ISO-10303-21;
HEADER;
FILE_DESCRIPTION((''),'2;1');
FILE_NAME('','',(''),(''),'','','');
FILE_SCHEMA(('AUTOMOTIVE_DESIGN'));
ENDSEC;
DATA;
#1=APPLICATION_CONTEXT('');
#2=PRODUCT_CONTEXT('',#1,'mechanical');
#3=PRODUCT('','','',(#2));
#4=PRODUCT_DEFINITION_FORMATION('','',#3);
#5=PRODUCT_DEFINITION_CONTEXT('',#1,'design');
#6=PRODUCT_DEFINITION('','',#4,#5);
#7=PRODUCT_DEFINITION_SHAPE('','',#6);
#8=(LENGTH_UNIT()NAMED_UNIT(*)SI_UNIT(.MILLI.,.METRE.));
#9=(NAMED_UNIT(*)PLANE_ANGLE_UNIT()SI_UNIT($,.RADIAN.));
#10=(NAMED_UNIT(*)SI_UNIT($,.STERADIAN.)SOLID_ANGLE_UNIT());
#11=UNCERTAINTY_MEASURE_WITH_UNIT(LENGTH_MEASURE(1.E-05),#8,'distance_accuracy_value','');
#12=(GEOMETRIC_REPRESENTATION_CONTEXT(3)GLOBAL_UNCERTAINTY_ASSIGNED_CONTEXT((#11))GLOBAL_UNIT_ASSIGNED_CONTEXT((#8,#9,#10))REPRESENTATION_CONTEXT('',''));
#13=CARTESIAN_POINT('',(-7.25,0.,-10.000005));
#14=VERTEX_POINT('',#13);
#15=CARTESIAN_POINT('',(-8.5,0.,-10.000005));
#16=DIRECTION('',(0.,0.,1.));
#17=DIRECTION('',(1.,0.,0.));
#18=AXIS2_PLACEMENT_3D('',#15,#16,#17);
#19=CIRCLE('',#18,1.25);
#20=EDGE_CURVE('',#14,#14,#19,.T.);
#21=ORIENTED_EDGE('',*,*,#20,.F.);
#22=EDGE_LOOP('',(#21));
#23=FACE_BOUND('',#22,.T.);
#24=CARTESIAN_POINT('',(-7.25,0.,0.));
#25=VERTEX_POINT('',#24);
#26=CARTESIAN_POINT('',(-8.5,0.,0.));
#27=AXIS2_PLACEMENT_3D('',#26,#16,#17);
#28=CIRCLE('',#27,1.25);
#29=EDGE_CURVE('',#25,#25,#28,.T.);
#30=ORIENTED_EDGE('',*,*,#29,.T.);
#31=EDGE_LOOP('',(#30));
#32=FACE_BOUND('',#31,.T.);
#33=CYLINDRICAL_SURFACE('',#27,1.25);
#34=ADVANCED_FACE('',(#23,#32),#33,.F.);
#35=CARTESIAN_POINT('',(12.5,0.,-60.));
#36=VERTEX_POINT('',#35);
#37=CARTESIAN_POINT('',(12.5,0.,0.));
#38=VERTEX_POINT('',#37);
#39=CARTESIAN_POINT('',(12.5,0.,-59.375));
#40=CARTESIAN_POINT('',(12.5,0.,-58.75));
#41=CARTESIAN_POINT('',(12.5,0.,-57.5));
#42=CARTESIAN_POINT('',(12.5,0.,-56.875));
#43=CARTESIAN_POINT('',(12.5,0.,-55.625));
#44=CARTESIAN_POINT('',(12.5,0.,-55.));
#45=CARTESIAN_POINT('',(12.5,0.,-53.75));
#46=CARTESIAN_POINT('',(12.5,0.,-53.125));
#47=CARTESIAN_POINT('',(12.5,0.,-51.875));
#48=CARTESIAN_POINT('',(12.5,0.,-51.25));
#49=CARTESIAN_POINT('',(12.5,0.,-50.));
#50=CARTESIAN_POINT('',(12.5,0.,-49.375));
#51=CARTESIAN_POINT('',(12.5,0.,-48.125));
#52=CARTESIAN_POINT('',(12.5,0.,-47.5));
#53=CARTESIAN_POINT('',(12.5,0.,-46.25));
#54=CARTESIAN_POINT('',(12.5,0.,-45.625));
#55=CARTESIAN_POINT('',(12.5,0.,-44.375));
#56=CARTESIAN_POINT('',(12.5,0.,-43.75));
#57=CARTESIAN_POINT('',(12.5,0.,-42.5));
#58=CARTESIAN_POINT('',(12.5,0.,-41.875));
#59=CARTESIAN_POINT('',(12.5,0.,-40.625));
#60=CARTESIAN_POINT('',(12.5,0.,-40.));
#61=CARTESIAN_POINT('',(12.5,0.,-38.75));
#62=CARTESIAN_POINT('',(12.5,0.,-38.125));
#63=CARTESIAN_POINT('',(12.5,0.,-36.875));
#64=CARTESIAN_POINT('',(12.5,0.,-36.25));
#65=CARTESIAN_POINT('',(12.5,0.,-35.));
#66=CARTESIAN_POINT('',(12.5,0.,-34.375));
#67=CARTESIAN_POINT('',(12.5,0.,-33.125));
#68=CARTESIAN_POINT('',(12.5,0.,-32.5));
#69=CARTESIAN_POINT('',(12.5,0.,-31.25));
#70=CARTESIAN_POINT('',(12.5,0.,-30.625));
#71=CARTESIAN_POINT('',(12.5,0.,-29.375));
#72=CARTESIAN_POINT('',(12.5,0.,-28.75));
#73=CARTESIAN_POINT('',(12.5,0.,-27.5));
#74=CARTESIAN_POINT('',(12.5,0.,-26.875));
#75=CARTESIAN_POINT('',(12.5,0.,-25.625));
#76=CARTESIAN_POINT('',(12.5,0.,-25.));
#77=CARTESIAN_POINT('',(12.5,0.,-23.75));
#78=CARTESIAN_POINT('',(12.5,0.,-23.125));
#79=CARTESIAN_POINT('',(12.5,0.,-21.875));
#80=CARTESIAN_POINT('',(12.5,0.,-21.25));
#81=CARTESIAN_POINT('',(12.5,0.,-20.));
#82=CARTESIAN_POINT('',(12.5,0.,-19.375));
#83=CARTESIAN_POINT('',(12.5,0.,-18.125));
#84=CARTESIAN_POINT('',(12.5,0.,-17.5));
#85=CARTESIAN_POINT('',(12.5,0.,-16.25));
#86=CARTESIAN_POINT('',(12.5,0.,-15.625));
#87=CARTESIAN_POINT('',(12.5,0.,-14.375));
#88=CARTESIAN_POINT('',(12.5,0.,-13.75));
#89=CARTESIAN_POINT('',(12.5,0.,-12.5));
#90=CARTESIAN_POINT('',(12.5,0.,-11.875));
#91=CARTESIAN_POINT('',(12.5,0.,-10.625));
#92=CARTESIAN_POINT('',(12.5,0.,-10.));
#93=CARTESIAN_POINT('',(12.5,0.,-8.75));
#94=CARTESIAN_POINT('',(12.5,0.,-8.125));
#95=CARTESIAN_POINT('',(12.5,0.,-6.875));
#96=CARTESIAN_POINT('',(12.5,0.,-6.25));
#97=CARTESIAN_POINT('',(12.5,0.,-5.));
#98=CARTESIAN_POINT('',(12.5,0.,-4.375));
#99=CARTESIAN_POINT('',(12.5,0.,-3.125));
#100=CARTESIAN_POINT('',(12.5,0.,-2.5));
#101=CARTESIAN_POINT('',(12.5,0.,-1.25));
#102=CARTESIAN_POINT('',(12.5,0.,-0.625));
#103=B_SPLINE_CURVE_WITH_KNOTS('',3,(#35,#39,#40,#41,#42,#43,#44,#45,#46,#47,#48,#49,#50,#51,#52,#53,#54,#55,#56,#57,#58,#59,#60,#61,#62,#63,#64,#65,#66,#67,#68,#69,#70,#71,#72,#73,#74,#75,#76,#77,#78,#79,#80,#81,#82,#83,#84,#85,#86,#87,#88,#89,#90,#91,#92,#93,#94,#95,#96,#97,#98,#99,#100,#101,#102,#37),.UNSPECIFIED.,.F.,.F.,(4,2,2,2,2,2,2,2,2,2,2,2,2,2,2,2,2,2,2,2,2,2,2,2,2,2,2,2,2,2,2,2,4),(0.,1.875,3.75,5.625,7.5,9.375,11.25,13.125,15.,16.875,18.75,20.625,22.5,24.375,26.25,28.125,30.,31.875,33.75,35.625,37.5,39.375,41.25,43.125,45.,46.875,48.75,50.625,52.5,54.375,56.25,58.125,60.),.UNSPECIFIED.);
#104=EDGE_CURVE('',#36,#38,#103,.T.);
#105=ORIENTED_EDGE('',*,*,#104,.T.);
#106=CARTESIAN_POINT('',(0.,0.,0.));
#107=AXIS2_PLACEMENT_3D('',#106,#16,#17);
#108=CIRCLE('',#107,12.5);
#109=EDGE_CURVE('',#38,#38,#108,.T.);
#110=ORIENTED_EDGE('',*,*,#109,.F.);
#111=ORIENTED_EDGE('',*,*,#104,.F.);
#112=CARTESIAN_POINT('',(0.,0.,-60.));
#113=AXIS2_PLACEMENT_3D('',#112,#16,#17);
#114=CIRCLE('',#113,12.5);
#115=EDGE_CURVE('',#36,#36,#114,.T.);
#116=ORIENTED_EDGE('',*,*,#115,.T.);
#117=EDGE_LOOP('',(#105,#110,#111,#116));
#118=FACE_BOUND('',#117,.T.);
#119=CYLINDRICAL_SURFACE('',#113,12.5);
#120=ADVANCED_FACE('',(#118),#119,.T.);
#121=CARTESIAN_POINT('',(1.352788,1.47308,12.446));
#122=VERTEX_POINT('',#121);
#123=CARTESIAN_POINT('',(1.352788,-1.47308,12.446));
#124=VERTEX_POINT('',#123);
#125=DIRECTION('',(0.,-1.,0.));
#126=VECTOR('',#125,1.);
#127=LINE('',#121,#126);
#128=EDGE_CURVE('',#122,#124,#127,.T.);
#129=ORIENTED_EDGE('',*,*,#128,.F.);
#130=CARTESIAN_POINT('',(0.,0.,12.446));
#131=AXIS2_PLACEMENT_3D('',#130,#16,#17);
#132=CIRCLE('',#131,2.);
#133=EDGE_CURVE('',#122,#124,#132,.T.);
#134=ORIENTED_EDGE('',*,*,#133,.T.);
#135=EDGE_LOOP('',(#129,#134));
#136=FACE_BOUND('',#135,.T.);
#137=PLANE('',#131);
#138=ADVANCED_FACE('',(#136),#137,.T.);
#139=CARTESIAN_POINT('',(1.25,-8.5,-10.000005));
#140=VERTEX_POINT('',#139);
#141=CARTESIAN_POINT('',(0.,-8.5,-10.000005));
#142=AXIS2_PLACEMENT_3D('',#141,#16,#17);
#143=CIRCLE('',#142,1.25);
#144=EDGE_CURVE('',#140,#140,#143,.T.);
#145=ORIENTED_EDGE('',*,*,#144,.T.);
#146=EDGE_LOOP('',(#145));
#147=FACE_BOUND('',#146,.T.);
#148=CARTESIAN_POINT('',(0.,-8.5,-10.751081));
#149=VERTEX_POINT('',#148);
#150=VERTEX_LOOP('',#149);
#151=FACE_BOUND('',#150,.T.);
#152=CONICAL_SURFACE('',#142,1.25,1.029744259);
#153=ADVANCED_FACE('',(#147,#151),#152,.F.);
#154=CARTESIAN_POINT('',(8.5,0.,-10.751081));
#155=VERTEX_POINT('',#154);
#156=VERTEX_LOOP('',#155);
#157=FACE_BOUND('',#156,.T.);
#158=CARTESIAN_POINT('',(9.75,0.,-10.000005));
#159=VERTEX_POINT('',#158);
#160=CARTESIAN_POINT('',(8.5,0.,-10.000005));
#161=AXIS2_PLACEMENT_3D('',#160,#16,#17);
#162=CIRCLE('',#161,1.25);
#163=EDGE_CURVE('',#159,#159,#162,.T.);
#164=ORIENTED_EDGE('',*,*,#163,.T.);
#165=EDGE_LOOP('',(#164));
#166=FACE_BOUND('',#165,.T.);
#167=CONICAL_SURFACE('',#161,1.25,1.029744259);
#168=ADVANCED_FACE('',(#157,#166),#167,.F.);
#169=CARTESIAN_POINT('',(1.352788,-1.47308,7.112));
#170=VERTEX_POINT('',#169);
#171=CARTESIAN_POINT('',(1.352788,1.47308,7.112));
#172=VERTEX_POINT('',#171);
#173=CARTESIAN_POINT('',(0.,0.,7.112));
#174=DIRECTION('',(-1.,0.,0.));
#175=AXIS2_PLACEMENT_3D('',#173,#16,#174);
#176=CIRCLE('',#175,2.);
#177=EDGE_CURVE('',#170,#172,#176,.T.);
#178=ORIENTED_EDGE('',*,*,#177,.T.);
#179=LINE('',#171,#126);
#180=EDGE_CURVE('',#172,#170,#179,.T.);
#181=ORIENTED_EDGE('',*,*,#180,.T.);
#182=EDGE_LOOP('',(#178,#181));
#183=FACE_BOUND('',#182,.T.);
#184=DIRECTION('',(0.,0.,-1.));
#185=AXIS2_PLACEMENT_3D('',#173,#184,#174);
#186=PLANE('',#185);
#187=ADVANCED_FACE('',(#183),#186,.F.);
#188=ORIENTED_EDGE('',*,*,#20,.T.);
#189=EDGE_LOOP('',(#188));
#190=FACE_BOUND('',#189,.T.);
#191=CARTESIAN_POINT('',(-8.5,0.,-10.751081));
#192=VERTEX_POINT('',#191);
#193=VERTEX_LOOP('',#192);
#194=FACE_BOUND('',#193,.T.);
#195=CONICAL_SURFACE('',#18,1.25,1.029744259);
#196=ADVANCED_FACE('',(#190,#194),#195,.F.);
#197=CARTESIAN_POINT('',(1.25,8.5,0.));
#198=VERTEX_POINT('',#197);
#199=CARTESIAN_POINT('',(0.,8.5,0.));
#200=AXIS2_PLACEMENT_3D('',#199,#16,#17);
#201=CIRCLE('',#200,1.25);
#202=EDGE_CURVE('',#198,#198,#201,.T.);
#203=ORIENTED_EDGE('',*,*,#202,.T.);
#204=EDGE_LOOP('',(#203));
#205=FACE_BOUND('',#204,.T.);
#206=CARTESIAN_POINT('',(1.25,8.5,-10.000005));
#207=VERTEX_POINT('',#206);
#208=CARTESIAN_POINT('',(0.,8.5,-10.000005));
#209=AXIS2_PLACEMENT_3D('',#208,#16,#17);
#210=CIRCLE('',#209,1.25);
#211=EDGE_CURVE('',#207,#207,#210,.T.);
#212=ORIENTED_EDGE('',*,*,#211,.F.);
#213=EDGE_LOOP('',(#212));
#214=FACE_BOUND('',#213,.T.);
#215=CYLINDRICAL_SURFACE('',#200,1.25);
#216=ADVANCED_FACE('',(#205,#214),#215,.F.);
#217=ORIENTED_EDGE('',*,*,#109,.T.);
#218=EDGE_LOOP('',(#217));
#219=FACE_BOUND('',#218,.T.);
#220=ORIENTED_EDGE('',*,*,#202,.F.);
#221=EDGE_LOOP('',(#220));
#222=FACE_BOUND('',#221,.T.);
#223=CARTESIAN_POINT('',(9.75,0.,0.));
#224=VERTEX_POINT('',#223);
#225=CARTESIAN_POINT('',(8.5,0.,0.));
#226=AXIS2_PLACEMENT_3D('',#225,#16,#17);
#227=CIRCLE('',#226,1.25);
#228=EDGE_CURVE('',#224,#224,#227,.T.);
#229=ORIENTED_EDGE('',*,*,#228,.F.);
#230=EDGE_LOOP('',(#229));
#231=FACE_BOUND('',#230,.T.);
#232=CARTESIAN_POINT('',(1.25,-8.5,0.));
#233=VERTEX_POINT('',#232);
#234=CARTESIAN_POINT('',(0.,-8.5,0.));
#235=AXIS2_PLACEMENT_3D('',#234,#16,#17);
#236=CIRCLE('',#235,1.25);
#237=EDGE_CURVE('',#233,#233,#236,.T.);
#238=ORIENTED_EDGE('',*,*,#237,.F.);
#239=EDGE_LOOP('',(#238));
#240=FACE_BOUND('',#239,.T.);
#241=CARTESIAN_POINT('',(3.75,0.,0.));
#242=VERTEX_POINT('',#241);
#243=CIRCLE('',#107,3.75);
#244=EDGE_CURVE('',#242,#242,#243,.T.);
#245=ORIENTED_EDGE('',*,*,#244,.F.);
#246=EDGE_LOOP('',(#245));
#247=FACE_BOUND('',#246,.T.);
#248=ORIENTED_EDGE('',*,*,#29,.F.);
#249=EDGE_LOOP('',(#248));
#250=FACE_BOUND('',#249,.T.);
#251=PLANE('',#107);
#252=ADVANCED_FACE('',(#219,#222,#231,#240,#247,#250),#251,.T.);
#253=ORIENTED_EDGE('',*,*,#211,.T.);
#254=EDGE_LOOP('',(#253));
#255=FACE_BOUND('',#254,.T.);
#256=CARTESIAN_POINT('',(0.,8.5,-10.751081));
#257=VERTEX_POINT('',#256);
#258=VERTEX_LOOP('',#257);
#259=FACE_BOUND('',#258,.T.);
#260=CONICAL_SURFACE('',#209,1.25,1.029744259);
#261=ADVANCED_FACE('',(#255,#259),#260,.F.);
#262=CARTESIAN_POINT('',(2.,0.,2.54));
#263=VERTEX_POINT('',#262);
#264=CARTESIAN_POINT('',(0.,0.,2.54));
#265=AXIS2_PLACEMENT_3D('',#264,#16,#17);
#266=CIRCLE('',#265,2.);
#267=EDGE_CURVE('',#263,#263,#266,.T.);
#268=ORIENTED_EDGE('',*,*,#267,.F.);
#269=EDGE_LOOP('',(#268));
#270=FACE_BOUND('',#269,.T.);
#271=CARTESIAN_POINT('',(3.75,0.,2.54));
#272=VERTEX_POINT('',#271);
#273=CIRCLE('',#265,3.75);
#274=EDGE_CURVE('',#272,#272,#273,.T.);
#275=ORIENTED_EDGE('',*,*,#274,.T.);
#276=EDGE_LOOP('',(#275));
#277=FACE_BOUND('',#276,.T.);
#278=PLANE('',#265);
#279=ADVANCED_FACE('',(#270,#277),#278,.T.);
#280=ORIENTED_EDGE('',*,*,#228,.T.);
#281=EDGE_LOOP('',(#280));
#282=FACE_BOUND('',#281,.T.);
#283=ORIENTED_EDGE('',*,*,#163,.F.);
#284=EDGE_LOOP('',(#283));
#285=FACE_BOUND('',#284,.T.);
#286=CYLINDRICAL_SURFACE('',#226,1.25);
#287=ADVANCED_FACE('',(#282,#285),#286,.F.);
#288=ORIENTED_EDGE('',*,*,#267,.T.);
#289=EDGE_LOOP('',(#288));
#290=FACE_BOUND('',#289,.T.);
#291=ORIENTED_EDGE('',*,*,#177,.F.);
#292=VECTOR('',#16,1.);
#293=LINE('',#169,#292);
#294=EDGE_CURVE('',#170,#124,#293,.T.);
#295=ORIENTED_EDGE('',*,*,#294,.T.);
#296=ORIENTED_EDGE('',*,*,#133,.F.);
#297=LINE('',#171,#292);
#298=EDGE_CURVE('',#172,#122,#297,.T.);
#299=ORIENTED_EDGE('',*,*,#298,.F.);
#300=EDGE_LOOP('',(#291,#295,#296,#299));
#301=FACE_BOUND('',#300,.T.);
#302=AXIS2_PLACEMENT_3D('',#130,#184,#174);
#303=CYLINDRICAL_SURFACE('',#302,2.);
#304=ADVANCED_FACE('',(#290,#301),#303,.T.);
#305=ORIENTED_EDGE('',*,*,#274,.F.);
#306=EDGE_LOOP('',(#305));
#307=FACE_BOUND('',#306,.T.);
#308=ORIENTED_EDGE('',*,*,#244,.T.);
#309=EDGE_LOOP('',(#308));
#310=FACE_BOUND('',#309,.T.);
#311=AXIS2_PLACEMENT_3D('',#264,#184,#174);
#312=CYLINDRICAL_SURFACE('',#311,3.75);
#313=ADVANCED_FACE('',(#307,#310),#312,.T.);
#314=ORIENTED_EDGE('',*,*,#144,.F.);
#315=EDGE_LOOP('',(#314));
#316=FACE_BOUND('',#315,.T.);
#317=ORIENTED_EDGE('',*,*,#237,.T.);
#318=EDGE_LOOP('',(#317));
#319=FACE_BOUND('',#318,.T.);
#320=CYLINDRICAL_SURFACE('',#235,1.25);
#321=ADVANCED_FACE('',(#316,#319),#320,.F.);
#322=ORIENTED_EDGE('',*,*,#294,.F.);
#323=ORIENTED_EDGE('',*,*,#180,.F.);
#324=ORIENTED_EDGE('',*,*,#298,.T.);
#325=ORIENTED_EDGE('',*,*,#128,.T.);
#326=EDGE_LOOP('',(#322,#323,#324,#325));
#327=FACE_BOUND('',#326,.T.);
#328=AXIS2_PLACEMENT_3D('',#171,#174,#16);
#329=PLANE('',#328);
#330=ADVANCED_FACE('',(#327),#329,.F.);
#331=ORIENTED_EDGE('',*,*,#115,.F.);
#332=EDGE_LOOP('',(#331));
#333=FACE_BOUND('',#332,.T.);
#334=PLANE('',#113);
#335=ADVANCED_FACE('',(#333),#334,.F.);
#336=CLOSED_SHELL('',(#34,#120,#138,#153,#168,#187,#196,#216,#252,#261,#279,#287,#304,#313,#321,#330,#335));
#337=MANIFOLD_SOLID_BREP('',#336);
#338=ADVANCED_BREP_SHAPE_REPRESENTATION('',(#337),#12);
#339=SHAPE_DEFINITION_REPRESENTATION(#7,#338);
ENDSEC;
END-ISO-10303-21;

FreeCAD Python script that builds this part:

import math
import FreeCAD as App
import Part
import Sketcher
from FreeCAD import Vector

doc = App.newDocument("Part")
params = doc.addObject("Spreadsheet::Sheet", "Params")
for row, (alias, value) in enumerate([
    ("sketch1_diameter", "25 mm"),
    ("pad1_length", "60 mm"),
    ("sketch2_diameter", "4 mm"),
    ("pad2_length", "12.446 mm"),
    ("sketch3_diameter", "7.5 mm"),
    ("pad3_length", "2.54 mm"),
    ("sketch4_radius", "2 mm"),
    ("pocket1_length", "5.334 mm"),
    ("sketch5_diameter", "2.5 mm"),
    ("hole_diameter", "2.5 mm"),
    ("hole_depth", "10.000005 mm"),
], start=1):
    params.set(f"A{row}", alias)
    params.set(f"B{row}", "=" + value)
    params.setAlias(f"B{row}", alias)

body = doc.addObject("PartDesign::Body", "Body")

# Sketch on XY plane
sketch1 = doc.addObject("Sketcher::SketchObject", "Sketch")
body.addObject(sketch1)
sketch1.AttachmentSupport = (doc.XY_Plane, [""])
sketch1.MapMode = "FlatFace"
sketch1.addGeometry(Part.Circle(Vector(0, 0, 0), Vector(0, 0, 1), 12), False)
sketch1.addConstraint(Sketcher.Constraint("Coincident", 0, 3, -1, 1))
sketch1.addConstraint(Sketcher.Constraint("Diameter", 0, 25.0))
sketch1.setExpression("Constraints[1]", "Params.sketch1_diameter")
pad1 = doc.addObject("PartDesign::Pad", "Pad")
body.addObject(pad1)
pad1.Profile = sketch1
pad1.setExpression("Length", "Params.pad1_length")
pad1.Reversed = True

# Sketch on XY plane
sketch2 = doc.addObject("Sketcher::SketchObject", "Sketch001")
body.addObject(sketch2)
sketch2.AttachmentSupport = (doc.XY_Plane, [""])
sketch2.MapMode = "FlatFace"
sketch2.addGeometry(Part.Circle(Vector(0, 0, 0), Vector(0, 0, 1), 2), False)
sketch2.addConstraint(Sketcher.Constraint("Coincident", 0, 3, -1, 1))
sketch2.addConstraint(Sketcher.Constraint("Diameter", 0, 4.0))
sketch2.setExpression("Constraints[1]", "Params.sketch2_diameter")
pad2 = doc.addObject("PartDesign::Pad", "Pad001")
body.addObject(pad2)
pad2.Profile = sketch2
pad2.setExpression("Length", "Params.pad2_length")

# Sketch on XY plane
sketch3 = doc.addObject("Sketcher::SketchObject", "Sketch002")
body.addObject(sketch3)
sketch3.AttachmentSupport = (doc.XY_Plane, [""])
sketch3.MapMode = "FlatFace"
sketch3.addGeometry(Part.Circle(Vector(0, 0, 0), Vector(0, 0, 1), 3.8), False)
sketch3.addConstraint(Sketcher.Constraint("Coincident", 0, 3, -1, 1))
sketch3.addConstraint(Sketcher.Constraint("Diameter", 0, 7.5))
sketch3.setExpression("Constraints[1]", "Params.sketch3_diameter")
pad3 = doc.addObject("PartDesign::Pad", "Pad002")
body.addObject(pad3)
pad3.Profile = sketch3
pad3.setExpression("Length", "Params.pad3_length")

# Sketch on XY plane
sketch4 = doc.addObject("Sketcher::SketchObject", "Sketch003")
body.addObject(sketch4)
sketch4.AttachmentSupport = (doc.XY_Plane, [""])
sketch4.MapMode = "FlatFace"
sketch4.AttachmentOffset = App.Placement(Vector(0, 0, 7.112), App.Rotation())
sketch4.addGeometry(Part.LineSegment(Vector(1.4, 1.5, 0), Vector(1.4, -1.5, 0)), False)
sketch4.addGeometry(Part.ArcOfCircle(Part.Circle(Vector(0, 0, 0), Vector(0, 0, 1), 2), math.radians(-47), math.radians(47)), False)
sketch4.addConstraint(Sketcher.Constraint("Coincident", 0, 1, 1, 2))
sketch4.addConstraint(Sketcher.Constraint("Coincident", 1, 1, 0, 2))
sketch4.addConstraint(Sketcher.Constraint("Vertical", 0))
sketch4.addConstraint(Sketcher.Constraint("Coincident", 1, 3, -1, 1))
sketch4.addConstraint(Sketcher.Constraint("Radius", 1, 2.0))
sketch4.addConstraint(Sketcher.Constraint("DistanceY", 0, 2, 0, 1, 2.946161))
sketch4.setExpression("Constraints[4]", "Params.sketch4_radius")
pocket1 = doc.addObject("PartDesign::Pocket", "Pocket")
body.addObject(pocket1)
pocket1.Profile = sketch4
pocket1.setExpression("Length", "Params.pocket1_length")
pocket1.Reversed = True

# Sketch on XY plane
sketch5 = doc.addObject("Sketcher::SketchObject", "Sketch004")
body.addObject(sketch5)
sketch5.AttachmentSupport = (doc.XY_Plane, [""])
sketch5.MapMode = "FlatFace"
sketch5.addGeometry(Part.Circle(Vector(0, 8.5, 0), Vector(0, 0, 1), 1.2), False)
sketch5.addGeometry(Part.Circle(Vector(8.5, 0, 0), Vector(0, 0, 1), 1.2), False)
sketch5.addGeometry(Part.Circle(Vector(0, -8.5, 0), Vector(0, 0, 1), 1.2), False)
sketch5.addGeometry(Part.Circle(Vector(-8.5, 0, 0), Vector(0, 0, 1), 1.2), False)
sketch5.addConstraint(Sketcher.Constraint("Equal", 0, 1))
sketch5.addConstraint(Sketcher.Constraint("Equal", 1, 2))
sketch5.addConstraint(Sketcher.Constraint("Equal", 2, 3))
sketch5.addConstraint(Sketcher.Constraint("Symmetric", 0, 3, 2, 3, -1, 1))
sketch5.addConstraint(Sketcher.Constraint("Symmetric", 1, 3, 3, 3, -1, 1))
sketch5.addConstraint(Sketcher.Constraint("PointOnObject", 0, 3, -2))
sketch5.addConstraint(Sketcher.Constraint("PointOnObject", 1, 3, -1))
sketch5.addConstraint(Sketcher.Constraint("Diameter", 0, 2.5))
sketch5.addConstraint(Sketcher.Constraint("DistanceY", 2, 3, 0, 3, 17.0))
sketch5.addConstraint(Sketcher.Constraint("DistanceX", 3, 3, 1, 3, 17.0))
sketch5.setExpression("Constraints[7]", "Params.sketch5_diameter")
doc.recompute()
hole = doc.addObject("PartDesign::Hole", "Hole")
body.addObject(hole)
hole.Profile = sketch5
hole.ThreadType = "None"
hole.setExpression("Diameter", "Params.hole_diameter")
hole.DepthType = "Dimension"
hole.setExpression("Depth", "Params.hole_depth")
hole.DrillPoint = "Angled"
hole.DrillPointAngle = 118

doc.recompute()
